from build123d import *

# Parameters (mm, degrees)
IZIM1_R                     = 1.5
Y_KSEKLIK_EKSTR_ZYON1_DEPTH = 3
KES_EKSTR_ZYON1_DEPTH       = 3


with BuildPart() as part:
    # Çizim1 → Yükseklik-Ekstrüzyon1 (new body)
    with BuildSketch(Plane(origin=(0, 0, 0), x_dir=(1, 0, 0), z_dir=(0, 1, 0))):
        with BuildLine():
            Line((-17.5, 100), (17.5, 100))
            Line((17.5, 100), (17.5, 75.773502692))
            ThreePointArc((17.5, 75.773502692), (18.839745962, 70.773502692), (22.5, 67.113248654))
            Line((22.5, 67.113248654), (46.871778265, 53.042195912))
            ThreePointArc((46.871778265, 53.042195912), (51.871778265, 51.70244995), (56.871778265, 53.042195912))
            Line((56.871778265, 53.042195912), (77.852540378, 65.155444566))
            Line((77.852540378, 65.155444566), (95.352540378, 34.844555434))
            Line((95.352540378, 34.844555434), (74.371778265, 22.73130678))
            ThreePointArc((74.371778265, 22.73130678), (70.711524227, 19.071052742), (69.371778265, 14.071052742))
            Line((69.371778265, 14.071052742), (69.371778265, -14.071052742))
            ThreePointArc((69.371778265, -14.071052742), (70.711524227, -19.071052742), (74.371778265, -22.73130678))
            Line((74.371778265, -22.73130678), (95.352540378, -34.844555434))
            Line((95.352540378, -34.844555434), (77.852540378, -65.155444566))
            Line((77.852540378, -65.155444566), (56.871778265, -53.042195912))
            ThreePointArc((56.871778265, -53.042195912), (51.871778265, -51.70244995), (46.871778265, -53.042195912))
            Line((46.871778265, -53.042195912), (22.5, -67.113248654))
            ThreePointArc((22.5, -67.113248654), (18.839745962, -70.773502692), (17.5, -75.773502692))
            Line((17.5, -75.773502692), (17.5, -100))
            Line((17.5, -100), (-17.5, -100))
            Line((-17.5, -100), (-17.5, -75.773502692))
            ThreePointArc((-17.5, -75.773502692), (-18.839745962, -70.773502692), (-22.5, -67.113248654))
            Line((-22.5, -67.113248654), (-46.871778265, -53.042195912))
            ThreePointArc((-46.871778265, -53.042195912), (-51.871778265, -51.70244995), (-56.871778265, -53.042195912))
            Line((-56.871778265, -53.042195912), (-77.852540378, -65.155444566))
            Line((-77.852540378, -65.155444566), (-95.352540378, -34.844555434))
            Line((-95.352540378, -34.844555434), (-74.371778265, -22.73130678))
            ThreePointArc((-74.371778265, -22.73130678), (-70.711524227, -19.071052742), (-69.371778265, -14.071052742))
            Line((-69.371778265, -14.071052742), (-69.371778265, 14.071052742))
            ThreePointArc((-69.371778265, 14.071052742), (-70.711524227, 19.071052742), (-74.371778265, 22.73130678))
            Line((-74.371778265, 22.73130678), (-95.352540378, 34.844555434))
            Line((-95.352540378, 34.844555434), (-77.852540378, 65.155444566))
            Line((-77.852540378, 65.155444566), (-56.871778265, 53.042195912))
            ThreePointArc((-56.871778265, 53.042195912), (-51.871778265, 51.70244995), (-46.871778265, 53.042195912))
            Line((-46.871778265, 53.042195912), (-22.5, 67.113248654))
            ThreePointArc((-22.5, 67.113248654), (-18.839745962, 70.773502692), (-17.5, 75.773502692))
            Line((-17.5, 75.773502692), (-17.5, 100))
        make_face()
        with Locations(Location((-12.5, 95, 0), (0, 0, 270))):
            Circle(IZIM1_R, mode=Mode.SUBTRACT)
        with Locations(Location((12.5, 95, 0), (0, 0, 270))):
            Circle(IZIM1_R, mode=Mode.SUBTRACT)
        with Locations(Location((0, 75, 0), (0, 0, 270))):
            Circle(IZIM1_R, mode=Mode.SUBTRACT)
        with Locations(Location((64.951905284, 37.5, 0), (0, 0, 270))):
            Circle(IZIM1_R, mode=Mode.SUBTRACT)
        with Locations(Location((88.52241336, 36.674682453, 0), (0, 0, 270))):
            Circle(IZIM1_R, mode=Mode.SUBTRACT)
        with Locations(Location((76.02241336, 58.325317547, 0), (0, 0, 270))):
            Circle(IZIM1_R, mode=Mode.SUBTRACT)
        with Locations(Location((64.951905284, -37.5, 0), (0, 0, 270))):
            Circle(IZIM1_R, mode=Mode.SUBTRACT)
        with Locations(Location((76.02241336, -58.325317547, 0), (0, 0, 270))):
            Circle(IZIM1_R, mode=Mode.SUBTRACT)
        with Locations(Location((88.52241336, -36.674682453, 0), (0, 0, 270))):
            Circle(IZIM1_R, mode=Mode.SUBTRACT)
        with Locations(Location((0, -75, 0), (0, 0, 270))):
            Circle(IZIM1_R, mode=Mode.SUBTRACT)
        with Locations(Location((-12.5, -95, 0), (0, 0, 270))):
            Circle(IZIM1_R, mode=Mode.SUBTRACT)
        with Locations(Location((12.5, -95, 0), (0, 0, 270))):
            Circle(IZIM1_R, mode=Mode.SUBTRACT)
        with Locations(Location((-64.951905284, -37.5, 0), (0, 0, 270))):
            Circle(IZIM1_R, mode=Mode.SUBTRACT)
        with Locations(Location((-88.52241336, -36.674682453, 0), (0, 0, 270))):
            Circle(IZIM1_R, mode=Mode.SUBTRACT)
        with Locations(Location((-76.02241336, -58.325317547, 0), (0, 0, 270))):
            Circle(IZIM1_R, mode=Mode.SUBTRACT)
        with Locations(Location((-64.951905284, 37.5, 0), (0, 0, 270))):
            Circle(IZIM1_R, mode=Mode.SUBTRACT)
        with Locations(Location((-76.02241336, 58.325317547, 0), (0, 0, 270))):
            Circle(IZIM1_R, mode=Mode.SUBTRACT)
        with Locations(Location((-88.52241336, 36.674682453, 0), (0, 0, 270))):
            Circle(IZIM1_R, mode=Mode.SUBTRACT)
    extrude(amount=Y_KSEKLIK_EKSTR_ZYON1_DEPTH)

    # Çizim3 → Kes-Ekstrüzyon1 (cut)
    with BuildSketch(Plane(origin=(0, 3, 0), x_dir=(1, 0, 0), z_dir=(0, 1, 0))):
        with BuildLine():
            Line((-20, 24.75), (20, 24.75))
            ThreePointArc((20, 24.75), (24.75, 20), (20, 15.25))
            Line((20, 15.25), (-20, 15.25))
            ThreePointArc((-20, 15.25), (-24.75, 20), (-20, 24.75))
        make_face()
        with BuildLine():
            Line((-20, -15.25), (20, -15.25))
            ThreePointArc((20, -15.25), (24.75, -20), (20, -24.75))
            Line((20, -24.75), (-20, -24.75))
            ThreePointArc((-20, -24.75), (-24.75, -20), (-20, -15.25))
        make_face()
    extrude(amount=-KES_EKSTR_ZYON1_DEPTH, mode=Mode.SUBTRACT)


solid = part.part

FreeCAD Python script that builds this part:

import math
import FreeCAD as App
import Part
import Sketcher
from FreeCAD import Vector
Q = App.Units.Quantity

doc = App.newDocument("Part")
body = doc.addObject("PartDesign::Body", "Body")

# Sketch on XZ plane
sketch1 = doc.addObject("Sketcher::SketchObject", "Sketch")
body.addObject(sketch1)
sketch1.AttachmentSupport = (doc.XZ_Plane, [""])
sketch1.MapMode = "FlatFace"
sketch1.addGeometry([
    Part.LineSegment(Vector(17.5, -100, 0), Vector(-17.5, -100, 0)),  # 0
    Part.LineSegment(Vector(-17.5, -100, 0), Vector(-17.5, -75.773503, 0)),  # 1
    Part.ArcOfCircle(Part.Circle(Vector(-27.5, -75.773503, 0), Vector(0, 0, 1), 10), math.radians(0), math.radians(60)),  # 2
    Part.LineSegment(Vector(-22.5, -67.113249, 0), Vector(-46.871778, -53.042196, 0)),  # 3
    Part.ArcOfCircle(Part.Circle(Vector(-51.871778, -61.70245, 0), Vector(0, 0, 1), 10), math.radians(60), math.radians(120)),  # 4
    Part.LineSegment(Vector(-56.871778, -53.042196, 0), Vector(-77.85254, -65.155445, 0)),  # 5
    Part.LineSegment(Vector(-77.85254, -65.155445, 0), Vector(-95.35254, -34.844555, 0)),  # 6
    Part.LineSegment(Vector(-95.35254, -34.844555, 0), Vector(-74.371778, -22.731307, 0)),  # 7
    Part.ArcOfCircle(Part.Circle(Vector(-79.371778, -14.071053, 0), Vector(0, 0, 1), 10), math.radians(-60), math.radians(0)),  # 8
    Part.LineSegment(Vector(-69.371778, -14.071053, 0), Vector(-69.371778, 14.071053, 0)),  # 9
    Part.ArcOfCircle(Part.Circle(Vector(-79.371778, 14.071053, 0), Vector(0, 0, 1), 10), math.radians(0), math.radians(60)),  # 10
    Part.LineSegment(Vector(-74.371778, 22.731307, 0), Vector(-95.35254, 34.844555, 0)),  # 11
    Part.LineSegment(Vector(-95.35254, 34.844555, 0), Vector(-77.85254, 65.155445, 0)),  # 12
    Part.LineSegment(Vector(-77.85254, 65.155445, 0), Vector(-56.871778, 53.042196, 0)),  # 13
    Part.ArcOfCircle(Part.Circle(Vector(-51.871778, 61.70245, 0), Vector(0, 0, 1), 10), math.radians(-120), math.radians(-60)),  # 14
    Part.LineSegment(Vector(-46.871778, 53.042196, 0), Vector(-22.5, 67.113249, 0)),  # 15
    Part.ArcOfCircle(Part.Circle(Vector(-27.5, 75.773503, 0), Vector(0, 0, 1), 10), math.radians(-60), math.radians(0)),  # 16
    Part.LineSegment(Vector(-17.5, 75.773503, 0), Vector(-17.5, 100, 0)),  # 17
    Part.LineSegment(Vector(-17.5, 100, 0), Vector(17.5, 100, 0)),  # 18
    Part.LineSegment(Vector(17.5, 100, 0), Vector(17.5, 75.773503, 0)),  # 19
    Part.ArcOfCircle(Part.Circle(Vector(27.5, 75.773503, 0), Vector(0, 0, 1), 10), math.radians(180), math.radians(240)),  # 20
    Part.LineSegment(Vector(22.5, 67.113249, 0), Vector(46.871778, 53.042196, 0)),  # 21
    Part.ArcOfCircle(Part.Circle(Vector(51.871778, 61.70245, 0), Vector(0, 0, 1), 10), math.radians(-120), math.radians(-60)),  # 22
    Part.LineSegment(Vector(56.871778, 53.042196, 0), Vector(77.85254, 65.155445, 0)),  # 23
    Part.LineSegment(Vector(77.85254, 65.155445, 0), Vector(95.35254, 34.844555, 0)),  # 24
    Part.LineSegment(Vector(95.35254, 34.844555, 0), Vector(74.371778, 22.731307, 0)),  # 25
    Part.ArcOfCircle(Part.Circle(Vector(79.371778, 14.071053, 0), Vector(0, 0, 1), 10), math.radians(120), math.radians(180)),  # 26
    Part.LineSegment(Vector(69.371778, 14.071053, 0), Vector(69.371778, -14.071053, 0)),  # 27
    Part.ArcOfCircle(Part.Circle(Vector(79.371778, -14.071053, 0), Vector(0, 0, 1), 10), math.radians(180), math.radians(240)),  # 28
    Part.LineSegment(Vector(74.371778, -22.731307, 0), Vector(95.35254, -34.844555, 0)),  # 29
    Part.LineSegment(Vector(95.35254, -34.844555, 0), Vector(77.85254, -65.155445, 0)),  # 30
    Part.LineSegment(Vector(77.85254, -65.155445, 0), Vector(56.871778, -53.042196, 0)),  # 31
    Part.ArcOfCircle(Part.Circle(Vector(51.871778, -61.70245, 0), Vector(0, 0, 1), 10), math.radians(60), math.radians(120)),  # 32
    Part.LineSegment(Vector(46.871778, -53.042196, 0), Vector(22.5, -67.113249, 0)),  # 33
    Part.ArcOfCircle(Part.Circle(Vector(27.5, -75.773503, 0), Vector(0, 0, 1), 10), math.radians(120), math.radians(180)),  # 34
    Part.LineSegment(Vector(17.5, -75.773503, 0), Vector(17.5, -100, 0)),  # 35
    Part.Circle(Vector(76.022413, 58.325318, 0), Vector(0, 0, 1), 1.5),  # 36
    Part.Circle(Vector(12.5, 95, 0), Vector(0, 0, 1), 1.5),  # 37
    Part.Circle(Vector(0, 75, 0), Vector(0, 0, 1), 1.5),  # 38
    Part.Circle(Vector(88.522413, 36.674682, 0), Vector(0, 0, 1), 1.5),  # 39
    Part.Circle(Vector(64.951905, 37.5, 0), Vector(0, 0, 1), 1.5),  # 40
    Part.Circle(Vector(-12.5, 95, 0), Vector(0, 0, 1), 1.5),  # 41
    Part.Circle(Vector(-76.022413, 58.325318, 0), Vector(0, 0, 1), 1.5),  # 42
    Part.Circle(Vector(-64.951905, 37.5, 0), Vector(0, 0, 1), 1.5),  # 43
    Part.Circle(Vector(-88.522413, 36.674682, 0), Vector(0, 0, 1), 1.5),  # 44
    Part.Circle(Vector(88.522413, -36.674682, 0), Vector(0, 0, 1), 1.5),  # 45
    Part.Circle(Vector(64.951905, -37.5, 0), Vector(0, 0, 1), 1.5),  # 46
    Part.Circle(Vector(76.022413, -58.325318, 0), Vector(0, 0, 1), 1.5),  # 47
    Part.Circle(Vector(0, -75, 0), Vector(0, 0, 1), 1.5),  # 48
    Part.Circle(Vector(12.5, -95, 0), Vector(0, 0, 1), 1.5),  # 49
    Part.Circle(Vector(-64.951905, -37.5, 0), Vector(0, 0, 1), 1.5),  # 50
    Part.Circle(Vector(-88.522413, -36.674682, 0), Vector(0, 0, 1), 1.5),  # 51
    Part.Circle(Vector(-12.5, -95, 0), Vector(0, 0, 1), 1.5),  # 52
    Part.Circle(Vector(-76.022413, -58.325318, 0), Vector(0, 0, 1), 1.5),  # 53
], False)
sketch1.addConstraint([
    Sketcher.Constraint("Coincident", 0, 2, 1, 1),
    Sketcher.Constraint("Tangent", 1, 2, 2, 1),
    Sketcher.Constraint("Tangent", 2, 2, 3, 1),
    Sketcher.Constraint("Tangent", 3, 2, 4, 1),
    Sketcher.Constraint("Tangent", 4, 2, 5, 1),
    Sketcher.Constraint("Coincident", 5, 2, 6, 1),
    Sketcher.Constraint("Coincident", 6, 2, 7, 1),
    Sketcher.Constraint("Tangent", 7, 2, 8, 1),
    Sketcher.Constraint("Tangent", 8, 2, 9, 1),
    Sketcher.Constraint("Tangent", 9, 2, 10, 1),
    Sketcher.Constraint("Tangent", 10, 2, 11, 1),
    Sketcher.Constraint("Coincident", 11, 2, 12, 1),
    Sketcher.Constraint("Coincident", 12, 2, 13, 1),
    Sketcher.Constraint("Tangent", 13, 2, 14, 1),
    Sketcher.Constraint("Tangent", 14, 2, 15, 1),
    Sketcher.Constraint("Tangent", 15, 2, 16, 1),
    Sketcher.Constraint("Tangent", 16, 2, 17, 1),
    Sketcher.Constraint("Coincident", 17, 2, 18, 1),
    Sketcher.Constraint("Coincident", 18, 2, 19, 1),
    Sketcher.Constraint("Tangent", 19, 2, 20, 1),
    Sketcher.Constraint("Tangent", 20, 2, 21, 1),
    Sketcher.Constraint("Tangent", 21, 2, 22, 1),
    Sketcher.Constraint("Tangent", 22, 2, 23, 1),
    Sketcher.Constraint("Coincident", 23, 2, 24, 1),
    Sketcher.Constraint("Coincident", 24, 2, 25, 1),
    Sketcher.Constraint("Tangent", 25, 2, 26, 1),
    Sketcher.Constraint("Tangent", 26, 2, 27, 1),
    Sketcher.Constraint("Tangent", 27, 2, 28, 1),
    Sketcher.Constraint("Tangent", 28, 2, 29, 1),
    Sketcher.Constraint("Coincident", 29, 2, 30, 1),
    Sketcher.Constraint("Coincident", 30, 2, 31, 1),
    Sketcher.Constraint("Tangent", 31, 2, 32, 1),
    Sketcher.Constraint("Tangent", 32, 2, 33, 1),
    Sketcher.Constraint("Tangent", 33, 2, 34, 1),
    Sketcher.Constraint("Tangent", 34, 2, 35, 1),
    Sketcher.Constraint("Coincident", 35, 2, 0, 1),
    Sketcher.Constraint("Horizontal", 0),
    Sketcher.Constraint("Vertical", 1),
    Sketcher.Constraint("Vertical", 9),
    Sketcher.Constraint("Vertical", 17),
    Sketcher.Constraint("Horizontal", 18),
    Sketcher.Constraint("Vertical", 19),
    Sketcher.Constraint("Vertical", 27),
    Sketcher.Constraint("Vertical", 35),
    Sketcher.Constraint("Equal", 2, 4),
    Sketcher.Constraint("Equal", 4, 8),
    Sketcher.Constraint("Equal", 8, 10),
    Sketcher.Constraint("Equal", 10, 14),
    Sketcher.Constraint("Equal", 14, 16),
    Sketcher.Constraint("Equal", 16, 20),
    Sketcher.Constraint("Equal", 20, 22),
    Sketcher.Constraint("Equal", 22, 26),
    Sketcher.Constraint("Equal", 26, 28),
    Sketcher.Constraint("Equal", 28, 32),
    Sketcher.Constraint("Equal", 32, 34),
    Sketcher.Constraint("Equal", 36, 37),
    Sketcher.Constraint("Equal", 37, 38),
    Sketcher.Constraint("Equal", 38, 39),
    Sketcher.Constraint("Equal", 39, 40),
    Sketcher.Constraint("Equal", 40, 41),
    Sketcher.Constraint("Equal", 41, 42),
    Sketcher.Constraint("Equal", 42, 43),
    Sketcher.Constraint("Equal", 43, 44),
    Sketcher.Constraint("Equal", 44, 45),
    Sketcher.Constraint("Equal", 45, 46),
    Sketcher.Constraint("Equal", 46, 47),
    Sketcher.Constraint("Equal", 47, 48),
    Sketcher.Constraint("Equal", 48, 49),
    Sketcher.Constraint("Equal", 49, 50),
    Sketcher.Constraint("Equal", 50, 51),
    Sketcher.Constraint("Equal", 51, 52),
    Sketcher.Constraint("Equal", 52, 53),
    Sketcher.Constraint("Symmetric", 2, 3, 20, 3, -1, 1),
    Sketcher.Constraint("Symmetric", 4, 3, 22, 3, -1, 1),
    Sketcher.Constraint("Symmetric", 8, 3, 26, 3, -1, 1),
    Sketcher.Constraint("Symmetric", 14, 3, 32, 3, -1, 1),
    Sketcher.Constraint("Symmetric", 16, 3, 34, 3, -1, 1),
    Sketcher.Constraint("Symmetric", 44, 3, 45, 3, -1, 1),
    Sketcher.Constraint("Symmetric", 43, 3, 46, 3, -1, 1),
    Sketcher.Constraint("Symmetric", 42, 3, 47, 3, -1, 1),
    Sketcher.Constraint("Symmetric", 38, 3, 48, 3, -1, 1),
    Sketcher.Constraint("Symmetric", 41, 3, 49, 3, -1, 1),
    Sketcher.Constraint("Symmetric", 40, 3, 50, 3, -1, 1),
    Sketcher.Constraint("Symmetric", 39, 3, 51, 3, -1, 1),
    Sketcher.Constraint("Symmetric", 37, 3, 52, 3, -1, 1),
    Sketcher.Constraint("Symmetric", 36, 3, 53, 3, -1, 1),
    Sketcher.Constraint("Symmetric", 5, 2, 23, 2, -1, 1),
    Sketcher.Constraint("Symmetric", 6, 2, 24, 2, -1, 1),
    Sketcher.Constraint("Symmetric", 10, 2, 28, 2, -1, 1),
    Sketcher.Constraint("Symmetric", 12, 2, 30, 2, -1, 1),
    Sketcher.Constraint("Symmetric", 16, 3, 20, 3, -2),
    Sketcher.Constraint("Symmetric", 14, 3, 22, 3, -2),
    Sketcher.Constraint("Symmetric", 37, 3, 41, 3, -2),
    Sketcher.Constraint("Symmetric", 36, 3, 42, 3, -2),
    Sketcher.Constraint("Symmetric", 40, 3, 43, 3, -2),
    Sketcher.Constraint("Symmetric", 39, 3, 44, 3, -2),
    Sketcher.Constraint("Symmetric", 12, 2, 23, 2, -2),
    Sketcher.Constraint("Symmetric", 11, 2, 24, 2, -2),
    Sketcher.Constraint("PointOnObject", 38, 3, -2),
    Sketcher.Constraint("Perpendicular", 5, 6),
    Sketcher.Constraint("Perpendicular", 6, 7),
    Sketcher.Constraint("Parallel", 3, 11),
    Sketcher.Constraint("Perpendicular", 11, 12),
    Sketcher.Constraint("Perpendicular", 29, 30),
    Sketcher.Constraint("Equal", 1, 17),
    Sketcher.Constraint("Equal", 5, 7),
    Sketcher.Constraint("Diameter", 36, Q("3 mm")),
    Sketcher.Constraint("Radius", 2, Q("10 mm")),
    Sketcher.Constraint("DistanceX", 0, 2, 0, 1, Q("35 mm")),
    Sketcher.Constraint("Angle", 3, Q("150 deg")),
    Sketcher.Constraint("Distance", 6, Q("35 mm")),
    Sketcher.Constraint("DistanceY", -1, 1, 37, 3, Q("95 mm")),
    Sketcher.Constraint("DistanceY", -1, 1, 38, 3, Q("75 mm")),
    Sketcher.Constraint("DistanceY", 0, 2, -1, 1, Q("100 mm")),
    Sketcher.Constraint("DistanceX", -1, 1, 37, 3, Q("12.5 mm")),
    Sketcher.Constraint("DistanceY", -1, 1, 40, 3, Q("37.5 mm")),
    Sketcher.Constraint("DistanceY", 1, 1, 1, 2, Q("24.226497 mm")),
    Sketcher.Constraint("DistanceY", 9, 1, 9, 2, Q("28.142105 mm")),
    Sketcher.Constraint("DistanceX", 5, 2, -1, 1, Q("77.85254 mm")),
    Sketcher.Constraint("DistanceX", -1, 1, 36, 3, Q("76.022413 mm")),
    Sketcher.Constraint("DistanceY", -1, 1, 36, 3, Q("58.325318 mm")),
    Sketcher.Constraint("DistanceX", -1, 1, 39, 3, Q("88.522413 mm")),
    Sketcher.Constraint("DistanceY", -1, 1, 39, 3, Q("36.674682 mm")),
    Sketcher.Constraint("DistanceX", -1, 1, 40, 3, Q("64.951905 mm")),
])
pad1 = doc.addObject("PartDesign::Pad", "Pad")
body.addObject(pad1)
pad1.Profile = sketch1
pad1.Length = 3
pad1.Reversed = True

# Sketch on XZ plane
sketch2 = doc.addObject("Sketcher::SketchObject", "Sketch001")
body.addObject(sketch2)
sketch2.AttachmentSupport = (doc.XZ_Plane, [""])
sketch2.MapMode = "FlatFace"
sketch2.AttachmentOffset = App.Placement(Vector(0, 0, -3), App.Rotation())
sketch2.addGeometry([
    Part.LineSegment(Vector(20, -24.75, 0), Vector(-20, -24.75, 0)),  # 0
    Part.ArcOfCircle(Part.Circle(Vector(-20, -20, 0), Vector(0, 0, 1), 4.75), math.radians(90), math.radians(270)),  # 1
    Part.LineSegment(Vector(-20, -15.25, 0), Vector(20, -15.25, 0)),  # 2
    Part.ArcOfCircle(Part.Circle(Vector(20, -20, 0), Vector(0, 0, 1), 4.75), math.radians(-90), math.radians(90)),  # 3
    Part.LineSegment(Vector(20, 15.25, 0), Vector(-20, 15.25, 0)),  # 4
    Part.ArcOfCircle(Part.Circle(Vector(-20, 20, 0), Vector(0, 0, 1), 4.75), math.radians(90), math.radians(270)),  # 5
    Part.LineSegment(Vector(-20, 24.75, 0), Vector(20, 24.75, 0)),  # 6
    Part.ArcOfCircle(Part.Circle(Vector(20, 20, 0), Vector(0, 0, 1), 4.75), math.radians(-90), math.radians(90)),  # 7
], False)
sketch2.addConstraint([
    Sketcher.Constraint("Tangent", 0, 2, 1, 2),
    Sketcher.Constraint("Tangent", 1, 1, 2, 1),
    Sketcher.Constraint("Tangent", 2, 2, 3, 2),
    Sketcher.Constraint("Tangent", 3, 1, 0, 1),
    Sketcher.Constraint("Tangent", 4, 2, 5, 2),
    Sketcher.Constraint("Tangent", 5, 1, 6, 1),
    Sketcher.Constraint("Tangent", 6, 2, 7, 2),
    Sketcher.Constraint("Tangent", 7, 1, 4, 1),
    Sketcher.Constraint("Horizontal", 0),
    Sketcher.Constraint("Horizontal", 2),
    Sketcher.Constraint("Horizontal", 4),
    Sketcher.Constraint("Horizontal", 6),
    Sketcher.Constraint("Equal", 3, 5),
    Sketcher.Constraint("Symmetric", 3, 3, 5, 3, -1, 1),
    Sketcher.Constraint("Vertical", 1, 3, 5, 3),
    Sketcher.Constraint("Vertical", 3, 3, 7, 3),
    Sketcher.Constraint("DistanceX", 0, 2, 0, 1, Q("40 mm")),
    Sketcher.Constraint("Radius", 1, Q("4.75 mm")),
    Sketcher.Constraint("DistanceY", 1, 3, -1, 1, Q("20 mm")),
])
pocket1 = doc.addObject("PartDesign::Pocket", "Pocket")
body.addObject(pocket1)
pocket1.Profile = sketch2
pocket1.Length = 3
pocket1.Reversed = True

doc.recompute()
